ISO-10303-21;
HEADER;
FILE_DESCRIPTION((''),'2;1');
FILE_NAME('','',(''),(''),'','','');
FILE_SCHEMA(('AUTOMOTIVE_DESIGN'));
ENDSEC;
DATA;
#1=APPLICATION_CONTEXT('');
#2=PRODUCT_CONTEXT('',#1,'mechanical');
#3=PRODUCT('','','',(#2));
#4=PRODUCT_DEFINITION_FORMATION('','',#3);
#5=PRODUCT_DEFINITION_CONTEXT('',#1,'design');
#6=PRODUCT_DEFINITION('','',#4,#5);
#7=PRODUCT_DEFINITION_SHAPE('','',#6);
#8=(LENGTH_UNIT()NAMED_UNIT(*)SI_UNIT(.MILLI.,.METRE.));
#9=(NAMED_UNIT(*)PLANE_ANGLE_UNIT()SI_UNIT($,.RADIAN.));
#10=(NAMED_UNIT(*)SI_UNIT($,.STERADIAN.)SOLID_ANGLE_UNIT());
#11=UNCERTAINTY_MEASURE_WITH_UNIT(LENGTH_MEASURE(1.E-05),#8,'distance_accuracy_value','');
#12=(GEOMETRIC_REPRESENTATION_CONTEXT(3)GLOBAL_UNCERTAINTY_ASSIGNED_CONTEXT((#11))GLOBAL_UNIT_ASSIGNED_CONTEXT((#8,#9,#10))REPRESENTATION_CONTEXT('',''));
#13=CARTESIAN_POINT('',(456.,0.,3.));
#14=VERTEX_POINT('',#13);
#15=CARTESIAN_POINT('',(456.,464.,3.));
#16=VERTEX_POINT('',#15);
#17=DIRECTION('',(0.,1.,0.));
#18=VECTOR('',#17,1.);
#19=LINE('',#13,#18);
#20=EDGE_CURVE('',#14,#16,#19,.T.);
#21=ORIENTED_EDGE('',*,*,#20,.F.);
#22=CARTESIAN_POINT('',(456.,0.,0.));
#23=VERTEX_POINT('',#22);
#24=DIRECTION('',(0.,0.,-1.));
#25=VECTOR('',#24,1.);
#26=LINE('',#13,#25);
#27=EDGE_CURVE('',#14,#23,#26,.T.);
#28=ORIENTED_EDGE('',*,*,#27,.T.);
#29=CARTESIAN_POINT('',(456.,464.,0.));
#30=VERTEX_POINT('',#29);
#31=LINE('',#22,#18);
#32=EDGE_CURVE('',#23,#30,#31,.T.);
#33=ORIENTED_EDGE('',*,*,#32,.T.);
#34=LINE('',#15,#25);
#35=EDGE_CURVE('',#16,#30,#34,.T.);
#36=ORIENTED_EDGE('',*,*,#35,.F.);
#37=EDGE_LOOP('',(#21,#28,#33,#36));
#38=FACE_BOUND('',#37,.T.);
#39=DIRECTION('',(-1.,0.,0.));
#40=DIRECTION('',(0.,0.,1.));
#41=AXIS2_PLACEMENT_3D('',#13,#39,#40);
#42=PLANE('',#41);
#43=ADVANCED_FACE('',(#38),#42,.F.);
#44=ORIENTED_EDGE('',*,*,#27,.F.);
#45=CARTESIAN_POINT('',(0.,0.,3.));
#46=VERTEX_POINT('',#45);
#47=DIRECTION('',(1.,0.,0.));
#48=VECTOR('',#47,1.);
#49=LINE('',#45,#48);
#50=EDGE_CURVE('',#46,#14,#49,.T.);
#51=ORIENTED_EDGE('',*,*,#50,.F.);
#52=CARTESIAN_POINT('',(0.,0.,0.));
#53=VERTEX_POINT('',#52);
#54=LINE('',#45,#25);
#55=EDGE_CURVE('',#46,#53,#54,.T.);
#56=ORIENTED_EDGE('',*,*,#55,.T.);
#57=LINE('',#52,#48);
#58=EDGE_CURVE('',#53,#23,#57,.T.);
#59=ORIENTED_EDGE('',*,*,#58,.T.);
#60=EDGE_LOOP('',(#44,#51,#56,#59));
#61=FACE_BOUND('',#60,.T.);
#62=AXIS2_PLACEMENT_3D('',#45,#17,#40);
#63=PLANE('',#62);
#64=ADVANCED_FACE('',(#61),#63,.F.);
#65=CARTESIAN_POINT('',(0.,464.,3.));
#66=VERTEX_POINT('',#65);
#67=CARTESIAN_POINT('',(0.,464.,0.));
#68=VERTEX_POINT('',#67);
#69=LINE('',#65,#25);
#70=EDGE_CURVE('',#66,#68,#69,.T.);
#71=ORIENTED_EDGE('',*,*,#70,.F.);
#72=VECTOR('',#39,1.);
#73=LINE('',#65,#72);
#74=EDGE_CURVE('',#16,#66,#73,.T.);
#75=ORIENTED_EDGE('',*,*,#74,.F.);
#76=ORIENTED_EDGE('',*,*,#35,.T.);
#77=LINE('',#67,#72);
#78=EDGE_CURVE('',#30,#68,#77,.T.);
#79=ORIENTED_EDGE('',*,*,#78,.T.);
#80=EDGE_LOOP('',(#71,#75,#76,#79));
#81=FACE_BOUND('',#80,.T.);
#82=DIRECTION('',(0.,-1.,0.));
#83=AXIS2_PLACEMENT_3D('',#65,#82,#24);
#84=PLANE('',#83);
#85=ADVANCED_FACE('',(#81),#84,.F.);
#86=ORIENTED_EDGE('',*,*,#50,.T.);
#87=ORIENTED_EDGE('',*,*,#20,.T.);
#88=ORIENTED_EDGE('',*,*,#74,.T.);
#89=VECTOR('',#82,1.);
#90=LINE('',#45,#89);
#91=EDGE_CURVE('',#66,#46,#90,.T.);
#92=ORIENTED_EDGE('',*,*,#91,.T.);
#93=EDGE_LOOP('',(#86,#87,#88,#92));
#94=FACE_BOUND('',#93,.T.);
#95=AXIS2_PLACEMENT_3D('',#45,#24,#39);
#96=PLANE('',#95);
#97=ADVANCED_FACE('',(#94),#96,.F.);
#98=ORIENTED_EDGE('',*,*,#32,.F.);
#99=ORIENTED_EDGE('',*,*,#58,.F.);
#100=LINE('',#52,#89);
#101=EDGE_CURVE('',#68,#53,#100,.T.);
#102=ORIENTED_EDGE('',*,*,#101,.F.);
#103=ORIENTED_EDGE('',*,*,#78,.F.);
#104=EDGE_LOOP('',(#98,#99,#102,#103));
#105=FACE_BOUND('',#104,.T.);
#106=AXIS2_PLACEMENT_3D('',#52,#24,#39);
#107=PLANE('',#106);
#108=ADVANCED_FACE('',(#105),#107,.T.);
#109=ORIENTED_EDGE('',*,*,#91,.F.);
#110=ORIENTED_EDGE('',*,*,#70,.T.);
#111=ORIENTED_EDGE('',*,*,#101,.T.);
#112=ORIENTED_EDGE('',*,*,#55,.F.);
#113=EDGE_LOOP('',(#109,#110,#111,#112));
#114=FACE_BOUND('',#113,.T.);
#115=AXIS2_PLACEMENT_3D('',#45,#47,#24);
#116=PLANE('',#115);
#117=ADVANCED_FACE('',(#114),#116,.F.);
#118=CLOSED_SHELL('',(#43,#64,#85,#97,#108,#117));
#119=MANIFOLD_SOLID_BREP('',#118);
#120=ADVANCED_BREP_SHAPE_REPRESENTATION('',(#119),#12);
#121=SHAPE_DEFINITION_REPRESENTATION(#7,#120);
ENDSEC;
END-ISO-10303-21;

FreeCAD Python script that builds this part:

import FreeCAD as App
import Part
import Sketcher

V = App.Vector
Q = App.Units.Quantity


def add_polygon(sketch, points):
    """Adds a closed chain of lines whose ends are joined by coincident constraints."""
    first, n = sketch.GeometryCount, len(points)
    for a, b in zip(points, points[1:] + points[:1]):
        sketch.addGeometry(Part.LineSegment(App.Vector(*a, 0), App.Vector(*b, 0)), False)
    for i in range(n):
        sketch.addConstraint(Sketcher.Constraint("Coincident", first + i, 2, first + (i + 1) % n, 1))

doc = App.newDocument("Part")
body = doc.addObject("PartDesign::Body", "Body")

sketch1 = doc.addObject("Sketcher::SketchObject", "Sketch")
body.addObject(sketch1)
sketch1.AttachmentSupport = (doc.XY_Plane, [""])
sketch1.MapMode = "FlatFace"
add_polygon(sketch1, [(0, 464), (0, 0), (456, 0), (456, 464)])
sketch1.addConstraint(Sketcher.Constraint("Vertical", 0))
sketch1.addConstraint(Sketcher.Constraint("Horizontal", 1))
sketch1.addConstraint(Sketcher.Constraint("Vertical", 2))
sketch1.addConstraint(Sketcher.Constraint("Horizontal", 3))
sketch1.addConstraint(Sketcher.Constraint("Coincident", 0, 2, -1, 1))
sketch1.addConstraint(Sketcher.Constraint("DistanceX", 1, 1, 1, 2, Q("456 mm")))
sketch1.addConstraint(Sketcher.Constraint("DistanceY", 0, 2, 0, 1, Q("464 mm")))
pad1 = doc.addObject("PartDesign::Pad", "Pad")
body.addObject(pad1)
pad1.Profile = sketch1
pad1.Length = 3

doc.recompute()
